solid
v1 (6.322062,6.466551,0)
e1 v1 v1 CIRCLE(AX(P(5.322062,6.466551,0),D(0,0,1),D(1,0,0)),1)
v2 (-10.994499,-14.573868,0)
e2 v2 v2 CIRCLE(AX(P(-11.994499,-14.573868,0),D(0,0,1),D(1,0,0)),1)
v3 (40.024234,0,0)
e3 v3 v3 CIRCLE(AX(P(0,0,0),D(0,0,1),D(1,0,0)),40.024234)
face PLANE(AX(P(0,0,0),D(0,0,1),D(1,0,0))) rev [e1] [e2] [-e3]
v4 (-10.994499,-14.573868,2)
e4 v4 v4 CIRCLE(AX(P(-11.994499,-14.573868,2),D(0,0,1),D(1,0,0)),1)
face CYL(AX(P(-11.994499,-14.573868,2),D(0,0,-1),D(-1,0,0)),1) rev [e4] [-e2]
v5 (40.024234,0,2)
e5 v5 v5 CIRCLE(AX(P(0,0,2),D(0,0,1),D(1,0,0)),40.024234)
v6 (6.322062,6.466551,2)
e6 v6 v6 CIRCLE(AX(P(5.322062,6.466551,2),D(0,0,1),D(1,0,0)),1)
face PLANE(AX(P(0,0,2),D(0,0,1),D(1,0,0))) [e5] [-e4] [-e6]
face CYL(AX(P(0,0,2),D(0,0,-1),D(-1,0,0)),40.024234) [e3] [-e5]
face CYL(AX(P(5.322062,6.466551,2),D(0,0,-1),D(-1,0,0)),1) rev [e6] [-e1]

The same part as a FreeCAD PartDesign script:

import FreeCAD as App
import Part
import Sketcher

V = App.Vector
Q = App.Units.Quantity

doc = App.newDocument("Part")
body = doc.addObject("PartDesign::Body", "Body")

# Sketch on XY plane
sketch1 = body.newObject("Sketcher::SketchObject", "Sketch")
sketch1.AttachmentSupport = (doc.getObject("XY_Plane"), [""])
sketch1.MapMode = "FlatFace"
sketch1.addGeometry(Part.Circle(V(0, 0, 0), V(0, 0, 1), 40), False)
sketch1.addGeometry(Part.Circle(V(-12, -14.6, 0), V(0, 0, 1), 1), False)
sketch1.addGeometry(Part.Circle(V(5.3, 6.5, 0), V(0, 0, 1), 1), False)
sketch1.addConstraint(Sketcher.Constraint("Coincident", 0, 3, -1, 1))
sketch1.addConstraint(Sketcher.Constraint("Equal", 1, 2))
sketch1.addConstraint(Sketcher.Constraint("Diameter", 1, Q("2 mm")))
sketch1.addConstraint(Sketcher.Constraint("Diameter", 0, Q("80.048467 mm")))
sketch1.addConstraint(Sketcher.Constraint("DistanceX", 1, 3, -1, 1, Q("11.994499 mm")))
sketch1.addConstraint(Sketcher.Constraint("DistanceY", -1, 1, 2, 3, Q("6.466551 mm")))
sketch1.addConstraint(Sketcher.Constraint("DistanceX", 1, 3, 2, 3, Q("17.316562 mm")))
sketch1.addConstraint(Sketcher.Constraint("DistanceY", 1, 3, 2, 3, Q("21.040418 mm")))
pad1 = body.newObject("PartDesign::Pad", "Pad")
pad1.Profile = sketch1
pad1.Length = 2

doc.recompute()
